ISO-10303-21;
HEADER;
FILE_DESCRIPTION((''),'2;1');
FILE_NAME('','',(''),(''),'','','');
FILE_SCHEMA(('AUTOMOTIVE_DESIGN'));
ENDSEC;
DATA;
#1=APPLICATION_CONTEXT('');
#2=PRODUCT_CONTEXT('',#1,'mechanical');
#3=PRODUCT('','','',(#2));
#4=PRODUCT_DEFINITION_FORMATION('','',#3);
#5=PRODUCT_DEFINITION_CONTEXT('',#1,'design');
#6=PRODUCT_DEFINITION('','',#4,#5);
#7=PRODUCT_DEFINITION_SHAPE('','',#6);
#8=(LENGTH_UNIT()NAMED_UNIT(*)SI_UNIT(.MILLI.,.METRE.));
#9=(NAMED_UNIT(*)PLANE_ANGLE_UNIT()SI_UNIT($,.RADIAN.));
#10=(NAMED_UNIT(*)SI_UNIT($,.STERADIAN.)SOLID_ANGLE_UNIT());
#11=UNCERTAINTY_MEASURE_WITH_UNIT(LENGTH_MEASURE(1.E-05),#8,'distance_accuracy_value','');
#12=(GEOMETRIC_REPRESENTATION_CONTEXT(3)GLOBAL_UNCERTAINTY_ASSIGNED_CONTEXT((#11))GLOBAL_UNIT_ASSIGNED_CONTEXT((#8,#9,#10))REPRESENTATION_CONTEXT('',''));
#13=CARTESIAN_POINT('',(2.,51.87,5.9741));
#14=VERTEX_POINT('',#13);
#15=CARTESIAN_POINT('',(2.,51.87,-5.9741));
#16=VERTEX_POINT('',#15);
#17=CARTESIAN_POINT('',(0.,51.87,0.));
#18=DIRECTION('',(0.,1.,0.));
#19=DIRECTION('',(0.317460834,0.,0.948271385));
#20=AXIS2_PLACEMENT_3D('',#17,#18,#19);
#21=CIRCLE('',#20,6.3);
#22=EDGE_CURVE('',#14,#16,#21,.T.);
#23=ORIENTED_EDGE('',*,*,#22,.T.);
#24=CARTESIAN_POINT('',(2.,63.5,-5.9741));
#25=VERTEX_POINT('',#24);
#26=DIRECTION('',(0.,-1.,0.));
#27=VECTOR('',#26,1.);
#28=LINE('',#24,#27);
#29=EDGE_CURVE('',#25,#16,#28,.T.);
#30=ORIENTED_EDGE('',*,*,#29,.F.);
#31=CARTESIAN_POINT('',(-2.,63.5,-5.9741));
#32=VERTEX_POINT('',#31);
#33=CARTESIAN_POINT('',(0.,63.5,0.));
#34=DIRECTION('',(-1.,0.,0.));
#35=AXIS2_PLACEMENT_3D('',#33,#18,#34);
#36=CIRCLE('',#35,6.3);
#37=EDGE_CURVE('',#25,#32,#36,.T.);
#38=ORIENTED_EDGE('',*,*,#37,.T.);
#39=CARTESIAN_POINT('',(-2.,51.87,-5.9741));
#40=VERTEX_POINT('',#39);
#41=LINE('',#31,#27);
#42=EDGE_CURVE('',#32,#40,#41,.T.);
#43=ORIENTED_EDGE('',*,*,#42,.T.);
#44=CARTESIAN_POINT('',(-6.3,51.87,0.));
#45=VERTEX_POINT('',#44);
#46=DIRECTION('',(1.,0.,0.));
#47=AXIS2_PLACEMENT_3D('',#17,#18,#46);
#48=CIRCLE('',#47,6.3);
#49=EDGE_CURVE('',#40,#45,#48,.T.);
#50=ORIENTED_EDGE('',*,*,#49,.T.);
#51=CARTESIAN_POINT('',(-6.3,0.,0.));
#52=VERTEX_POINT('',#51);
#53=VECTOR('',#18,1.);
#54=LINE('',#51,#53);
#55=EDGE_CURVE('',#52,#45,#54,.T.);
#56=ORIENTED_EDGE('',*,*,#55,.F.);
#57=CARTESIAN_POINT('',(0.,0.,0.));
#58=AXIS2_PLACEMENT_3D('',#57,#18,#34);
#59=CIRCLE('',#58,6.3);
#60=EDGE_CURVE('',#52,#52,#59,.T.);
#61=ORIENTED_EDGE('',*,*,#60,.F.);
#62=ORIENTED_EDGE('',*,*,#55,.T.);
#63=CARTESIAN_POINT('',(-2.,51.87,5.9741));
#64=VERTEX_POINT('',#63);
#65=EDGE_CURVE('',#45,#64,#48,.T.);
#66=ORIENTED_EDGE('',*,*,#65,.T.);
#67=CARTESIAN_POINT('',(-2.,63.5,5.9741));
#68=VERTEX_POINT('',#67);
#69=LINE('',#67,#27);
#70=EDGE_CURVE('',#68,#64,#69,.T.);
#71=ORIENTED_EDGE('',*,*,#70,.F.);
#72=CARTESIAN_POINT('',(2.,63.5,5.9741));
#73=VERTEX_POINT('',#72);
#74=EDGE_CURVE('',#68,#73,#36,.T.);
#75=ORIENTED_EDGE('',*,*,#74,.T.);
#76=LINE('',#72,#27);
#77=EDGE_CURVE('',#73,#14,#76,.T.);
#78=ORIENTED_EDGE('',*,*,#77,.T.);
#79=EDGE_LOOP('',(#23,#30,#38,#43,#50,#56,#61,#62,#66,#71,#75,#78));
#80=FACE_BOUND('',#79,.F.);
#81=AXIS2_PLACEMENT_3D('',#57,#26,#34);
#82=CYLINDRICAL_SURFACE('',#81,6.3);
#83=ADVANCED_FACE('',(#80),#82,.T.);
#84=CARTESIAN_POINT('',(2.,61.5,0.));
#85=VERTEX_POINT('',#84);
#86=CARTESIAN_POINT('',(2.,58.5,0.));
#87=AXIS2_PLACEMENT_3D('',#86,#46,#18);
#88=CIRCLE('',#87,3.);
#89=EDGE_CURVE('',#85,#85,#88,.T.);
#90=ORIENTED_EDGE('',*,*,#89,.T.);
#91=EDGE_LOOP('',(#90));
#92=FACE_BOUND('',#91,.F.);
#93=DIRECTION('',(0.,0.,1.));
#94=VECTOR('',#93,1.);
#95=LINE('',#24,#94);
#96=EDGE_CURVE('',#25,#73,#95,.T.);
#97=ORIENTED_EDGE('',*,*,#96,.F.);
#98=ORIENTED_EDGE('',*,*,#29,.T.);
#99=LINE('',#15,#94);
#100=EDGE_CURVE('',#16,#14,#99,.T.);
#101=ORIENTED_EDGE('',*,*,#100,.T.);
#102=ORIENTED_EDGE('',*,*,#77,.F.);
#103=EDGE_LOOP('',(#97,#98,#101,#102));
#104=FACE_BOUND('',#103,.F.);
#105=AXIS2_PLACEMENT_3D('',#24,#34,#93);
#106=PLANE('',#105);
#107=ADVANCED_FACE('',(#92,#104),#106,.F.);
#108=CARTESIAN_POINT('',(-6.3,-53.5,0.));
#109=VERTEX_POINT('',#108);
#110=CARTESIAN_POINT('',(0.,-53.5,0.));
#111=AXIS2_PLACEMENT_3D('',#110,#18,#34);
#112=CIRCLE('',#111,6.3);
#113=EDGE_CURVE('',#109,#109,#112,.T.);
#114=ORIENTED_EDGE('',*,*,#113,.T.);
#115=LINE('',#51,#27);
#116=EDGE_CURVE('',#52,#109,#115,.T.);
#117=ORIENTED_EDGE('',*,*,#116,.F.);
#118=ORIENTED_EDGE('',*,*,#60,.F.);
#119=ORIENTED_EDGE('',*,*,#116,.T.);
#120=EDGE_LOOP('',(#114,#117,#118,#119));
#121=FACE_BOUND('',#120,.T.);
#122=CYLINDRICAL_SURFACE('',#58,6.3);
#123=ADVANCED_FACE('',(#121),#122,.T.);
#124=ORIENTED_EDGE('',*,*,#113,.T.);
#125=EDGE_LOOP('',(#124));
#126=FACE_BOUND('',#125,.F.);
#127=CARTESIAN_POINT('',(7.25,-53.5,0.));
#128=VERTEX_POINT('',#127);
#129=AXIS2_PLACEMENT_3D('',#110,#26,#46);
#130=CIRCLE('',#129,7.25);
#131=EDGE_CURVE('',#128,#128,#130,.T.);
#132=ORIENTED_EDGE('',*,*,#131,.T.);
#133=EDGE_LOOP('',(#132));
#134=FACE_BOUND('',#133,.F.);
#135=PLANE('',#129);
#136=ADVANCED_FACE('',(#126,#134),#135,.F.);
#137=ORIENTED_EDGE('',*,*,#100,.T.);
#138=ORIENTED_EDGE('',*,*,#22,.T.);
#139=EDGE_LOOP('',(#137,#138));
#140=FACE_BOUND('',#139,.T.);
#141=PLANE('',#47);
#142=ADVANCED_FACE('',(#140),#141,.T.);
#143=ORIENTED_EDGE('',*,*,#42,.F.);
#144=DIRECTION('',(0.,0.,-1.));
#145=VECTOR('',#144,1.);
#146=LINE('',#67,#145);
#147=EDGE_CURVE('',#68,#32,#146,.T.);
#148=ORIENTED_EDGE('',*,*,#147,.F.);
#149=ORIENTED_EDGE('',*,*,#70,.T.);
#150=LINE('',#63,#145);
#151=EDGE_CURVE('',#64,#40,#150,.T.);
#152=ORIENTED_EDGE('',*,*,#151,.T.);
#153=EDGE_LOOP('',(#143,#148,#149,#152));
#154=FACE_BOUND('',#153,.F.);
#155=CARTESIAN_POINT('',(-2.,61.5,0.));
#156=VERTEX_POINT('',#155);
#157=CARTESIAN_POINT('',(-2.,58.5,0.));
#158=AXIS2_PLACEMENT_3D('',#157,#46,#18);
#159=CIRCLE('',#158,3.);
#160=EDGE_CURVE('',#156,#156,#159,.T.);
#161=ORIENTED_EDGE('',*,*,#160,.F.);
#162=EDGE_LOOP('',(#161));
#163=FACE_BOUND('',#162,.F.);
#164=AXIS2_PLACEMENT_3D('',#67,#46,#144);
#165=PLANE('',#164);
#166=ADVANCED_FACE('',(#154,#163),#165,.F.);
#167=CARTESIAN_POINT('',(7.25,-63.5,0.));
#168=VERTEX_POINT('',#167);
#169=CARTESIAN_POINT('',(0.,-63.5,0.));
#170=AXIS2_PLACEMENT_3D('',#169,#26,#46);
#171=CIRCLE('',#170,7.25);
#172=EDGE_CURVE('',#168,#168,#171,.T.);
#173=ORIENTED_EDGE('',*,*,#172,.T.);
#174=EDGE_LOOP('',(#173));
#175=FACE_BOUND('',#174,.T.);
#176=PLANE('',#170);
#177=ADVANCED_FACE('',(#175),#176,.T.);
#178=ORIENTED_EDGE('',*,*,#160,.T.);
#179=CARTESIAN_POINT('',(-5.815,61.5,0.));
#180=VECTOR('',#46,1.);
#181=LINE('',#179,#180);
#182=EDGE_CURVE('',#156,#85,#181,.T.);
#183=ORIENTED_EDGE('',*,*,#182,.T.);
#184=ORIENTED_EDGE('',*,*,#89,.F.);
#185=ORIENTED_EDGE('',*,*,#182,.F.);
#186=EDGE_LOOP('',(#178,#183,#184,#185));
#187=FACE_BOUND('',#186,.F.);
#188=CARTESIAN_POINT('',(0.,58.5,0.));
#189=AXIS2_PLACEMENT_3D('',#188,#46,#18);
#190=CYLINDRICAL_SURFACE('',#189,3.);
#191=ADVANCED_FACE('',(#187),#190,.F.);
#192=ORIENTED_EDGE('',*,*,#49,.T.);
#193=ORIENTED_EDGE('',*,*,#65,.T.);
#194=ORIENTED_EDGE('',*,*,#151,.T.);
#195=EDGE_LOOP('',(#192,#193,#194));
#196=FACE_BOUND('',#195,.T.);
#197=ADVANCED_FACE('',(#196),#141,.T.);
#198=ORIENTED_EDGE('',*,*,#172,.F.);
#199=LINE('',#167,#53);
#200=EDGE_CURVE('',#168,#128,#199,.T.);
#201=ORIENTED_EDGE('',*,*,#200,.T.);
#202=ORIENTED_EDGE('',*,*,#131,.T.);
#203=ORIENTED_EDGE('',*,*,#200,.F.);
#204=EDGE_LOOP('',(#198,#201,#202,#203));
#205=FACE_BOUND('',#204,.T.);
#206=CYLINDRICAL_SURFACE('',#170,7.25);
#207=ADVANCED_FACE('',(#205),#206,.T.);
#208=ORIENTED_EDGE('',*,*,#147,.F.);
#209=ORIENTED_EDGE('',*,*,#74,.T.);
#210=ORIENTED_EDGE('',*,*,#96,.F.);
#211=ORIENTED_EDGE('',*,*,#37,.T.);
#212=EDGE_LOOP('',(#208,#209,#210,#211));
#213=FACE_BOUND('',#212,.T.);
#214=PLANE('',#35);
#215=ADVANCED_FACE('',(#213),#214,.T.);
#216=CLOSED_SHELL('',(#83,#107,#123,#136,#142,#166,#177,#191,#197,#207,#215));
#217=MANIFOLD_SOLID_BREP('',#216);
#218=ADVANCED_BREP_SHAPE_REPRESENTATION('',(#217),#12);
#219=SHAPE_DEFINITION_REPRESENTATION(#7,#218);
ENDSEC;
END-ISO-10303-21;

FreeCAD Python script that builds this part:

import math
import FreeCAD as App
import Part
import Sketcher

doc = App.newDocument("Part")
body = doc.addObject("PartDesign::Body", "Body")

sketch1 = body.newObject("Sketcher::SketchObject", "Sketch")
sketch1.AttachmentSupport = (doc.getObject("XZ_Plane"), [""])
sketch1.MapMode = "FlatFace"
sketch1.addGeometry(Part.Circle(App.Vector(0, 0, 0), App.Vector(0, 0, 1), 6), False)
sketch1.addConstraint([
    Sketcher.Constraint("Coincident", 0, 3, -1, 1),
    Sketcher.Constraint("Diameter", 0, 12.6),
])
pad1 = body.newObject("PartDesign::Pad", "Pad")
pad1.Profile = sketch1
pad1.Length = 127
pad1.Midplane = True

sketch2 = body.newObject("Sketcher::SketchObject", "Sketch001")
sketch2.AttachmentSupport = (doc.getObject("XZ_Plane"), [""])
sketch2.MapMode = "FlatFace"
sketch2.AttachmentOffset = App.Placement(App.Vector(0, 0, -63.5), App.Rotation())
sketch2.addGeometry([
    Part.ArcOfCircle(Part.Circle(App.Vector(0, 0, 0), App.Vector(0, 0, 1), 6), math.radians(-71), math.radians(71)),
    Part.LineSegment(App.Vector(2, 6, 0), App.Vector(2, -6, 0)),
    Part.LineSegment(App.Vector(-2, 6, 0), App.Vector(-2, -6, 0)),
    Part.ArcOfCircle(Part.Circle(App.Vector(0, 0, 0), App.Vector(0, 0, 1), 6), math.radians(109), math.radians(251)),
], False)
sketch2.addConstraint([
    Sketcher.Constraint("Coincident", 0, 1, 1, 2),
    Sketcher.Constraint("Coincident", 1, 1, 0, 2),
    Sketcher.Constraint("Coincident", 2, 1, 3, 1),
    Sketcher.Constraint("Coincident", 3, 2, 2, 2),
    Sketcher.Constraint("Vertical", 1),
    Sketcher.Constraint("Vertical", 2),
    Sketcher.Constraint("Coincident", 0, 3, -1, 1),
    Sketcher.Constraint("Coincident", 3, 3, -1, 1),
    Sketcher.Constraint("Equal", 0, 3),
    Sketcher.Constraint("Horizontal", 1, 1, 2, 1),
    Sketcher.Constraint("DistanceX", 2, 1, 1, 1, 4.0),
    Sketcher.Constraint("Radius", 0, 6.3),
])
pocket1 = body.newObject("PartDesign::Pocket", "Pocket")
pocket1.Profile = sketch2
pocket1.Length = 11.63
pocket1.Reversed = True

sketch3 = body.newObject("Sketcher::SketchObject", "Sketch002")
sketch3.AttachmentSupport = (doc.getObject("YZ_Plane"), [""])
sketch3.MapMode = "FlatFace"
sketch3.addGeometry(Part.Circle(App.Vector(58.5, 0, 0), App.Vector(0, 0, 1), 3), False)
sketch3.addConstraint([
    Sketcher.Constraint("PointOnObject", 0, 3, -1),
    Sketcher.Constraint("Diameter", 0, 6.0),
    Sketcher.Constraint("DistanceX", -1, 1, 0, 3, 58.5),
])
pocket2 = body.newObject("PartDesign::Pocket", "Pocket001")
pocket2.Profile = sketch3
pocket2.Length = 11.63
pocket2.Midplane = True

sketch4 = body.newObject("Sketcher::SketchObject", "Sketch003")
sketch4.AttachmentSupport = (doc.getObject("XZ_Plane"), [""])
sketch4.MapMode = "FlatFace"
sketch4.AttachmentOffset = App.Placement(App.Vector(0, 0, 63.5), App.Rotation())
sketch4.addGeometry(Part.Circle(App.Vector(0, 0, 0), App.Vector(0, 0, 1), 7), False)
sketch4.addConstraint([
    Sketcher.Constraint("Coincident", 0, 3, -1, 1),
    Sketcher.Constraint("Diameter", 0, 14.5),
])
pad2 = body.newObject("PartDesign::Pad", "Pad001")
pad2.Profile = sketch4
pad2.Length = 10
pad2.Reversed = True

doc.recompute()
